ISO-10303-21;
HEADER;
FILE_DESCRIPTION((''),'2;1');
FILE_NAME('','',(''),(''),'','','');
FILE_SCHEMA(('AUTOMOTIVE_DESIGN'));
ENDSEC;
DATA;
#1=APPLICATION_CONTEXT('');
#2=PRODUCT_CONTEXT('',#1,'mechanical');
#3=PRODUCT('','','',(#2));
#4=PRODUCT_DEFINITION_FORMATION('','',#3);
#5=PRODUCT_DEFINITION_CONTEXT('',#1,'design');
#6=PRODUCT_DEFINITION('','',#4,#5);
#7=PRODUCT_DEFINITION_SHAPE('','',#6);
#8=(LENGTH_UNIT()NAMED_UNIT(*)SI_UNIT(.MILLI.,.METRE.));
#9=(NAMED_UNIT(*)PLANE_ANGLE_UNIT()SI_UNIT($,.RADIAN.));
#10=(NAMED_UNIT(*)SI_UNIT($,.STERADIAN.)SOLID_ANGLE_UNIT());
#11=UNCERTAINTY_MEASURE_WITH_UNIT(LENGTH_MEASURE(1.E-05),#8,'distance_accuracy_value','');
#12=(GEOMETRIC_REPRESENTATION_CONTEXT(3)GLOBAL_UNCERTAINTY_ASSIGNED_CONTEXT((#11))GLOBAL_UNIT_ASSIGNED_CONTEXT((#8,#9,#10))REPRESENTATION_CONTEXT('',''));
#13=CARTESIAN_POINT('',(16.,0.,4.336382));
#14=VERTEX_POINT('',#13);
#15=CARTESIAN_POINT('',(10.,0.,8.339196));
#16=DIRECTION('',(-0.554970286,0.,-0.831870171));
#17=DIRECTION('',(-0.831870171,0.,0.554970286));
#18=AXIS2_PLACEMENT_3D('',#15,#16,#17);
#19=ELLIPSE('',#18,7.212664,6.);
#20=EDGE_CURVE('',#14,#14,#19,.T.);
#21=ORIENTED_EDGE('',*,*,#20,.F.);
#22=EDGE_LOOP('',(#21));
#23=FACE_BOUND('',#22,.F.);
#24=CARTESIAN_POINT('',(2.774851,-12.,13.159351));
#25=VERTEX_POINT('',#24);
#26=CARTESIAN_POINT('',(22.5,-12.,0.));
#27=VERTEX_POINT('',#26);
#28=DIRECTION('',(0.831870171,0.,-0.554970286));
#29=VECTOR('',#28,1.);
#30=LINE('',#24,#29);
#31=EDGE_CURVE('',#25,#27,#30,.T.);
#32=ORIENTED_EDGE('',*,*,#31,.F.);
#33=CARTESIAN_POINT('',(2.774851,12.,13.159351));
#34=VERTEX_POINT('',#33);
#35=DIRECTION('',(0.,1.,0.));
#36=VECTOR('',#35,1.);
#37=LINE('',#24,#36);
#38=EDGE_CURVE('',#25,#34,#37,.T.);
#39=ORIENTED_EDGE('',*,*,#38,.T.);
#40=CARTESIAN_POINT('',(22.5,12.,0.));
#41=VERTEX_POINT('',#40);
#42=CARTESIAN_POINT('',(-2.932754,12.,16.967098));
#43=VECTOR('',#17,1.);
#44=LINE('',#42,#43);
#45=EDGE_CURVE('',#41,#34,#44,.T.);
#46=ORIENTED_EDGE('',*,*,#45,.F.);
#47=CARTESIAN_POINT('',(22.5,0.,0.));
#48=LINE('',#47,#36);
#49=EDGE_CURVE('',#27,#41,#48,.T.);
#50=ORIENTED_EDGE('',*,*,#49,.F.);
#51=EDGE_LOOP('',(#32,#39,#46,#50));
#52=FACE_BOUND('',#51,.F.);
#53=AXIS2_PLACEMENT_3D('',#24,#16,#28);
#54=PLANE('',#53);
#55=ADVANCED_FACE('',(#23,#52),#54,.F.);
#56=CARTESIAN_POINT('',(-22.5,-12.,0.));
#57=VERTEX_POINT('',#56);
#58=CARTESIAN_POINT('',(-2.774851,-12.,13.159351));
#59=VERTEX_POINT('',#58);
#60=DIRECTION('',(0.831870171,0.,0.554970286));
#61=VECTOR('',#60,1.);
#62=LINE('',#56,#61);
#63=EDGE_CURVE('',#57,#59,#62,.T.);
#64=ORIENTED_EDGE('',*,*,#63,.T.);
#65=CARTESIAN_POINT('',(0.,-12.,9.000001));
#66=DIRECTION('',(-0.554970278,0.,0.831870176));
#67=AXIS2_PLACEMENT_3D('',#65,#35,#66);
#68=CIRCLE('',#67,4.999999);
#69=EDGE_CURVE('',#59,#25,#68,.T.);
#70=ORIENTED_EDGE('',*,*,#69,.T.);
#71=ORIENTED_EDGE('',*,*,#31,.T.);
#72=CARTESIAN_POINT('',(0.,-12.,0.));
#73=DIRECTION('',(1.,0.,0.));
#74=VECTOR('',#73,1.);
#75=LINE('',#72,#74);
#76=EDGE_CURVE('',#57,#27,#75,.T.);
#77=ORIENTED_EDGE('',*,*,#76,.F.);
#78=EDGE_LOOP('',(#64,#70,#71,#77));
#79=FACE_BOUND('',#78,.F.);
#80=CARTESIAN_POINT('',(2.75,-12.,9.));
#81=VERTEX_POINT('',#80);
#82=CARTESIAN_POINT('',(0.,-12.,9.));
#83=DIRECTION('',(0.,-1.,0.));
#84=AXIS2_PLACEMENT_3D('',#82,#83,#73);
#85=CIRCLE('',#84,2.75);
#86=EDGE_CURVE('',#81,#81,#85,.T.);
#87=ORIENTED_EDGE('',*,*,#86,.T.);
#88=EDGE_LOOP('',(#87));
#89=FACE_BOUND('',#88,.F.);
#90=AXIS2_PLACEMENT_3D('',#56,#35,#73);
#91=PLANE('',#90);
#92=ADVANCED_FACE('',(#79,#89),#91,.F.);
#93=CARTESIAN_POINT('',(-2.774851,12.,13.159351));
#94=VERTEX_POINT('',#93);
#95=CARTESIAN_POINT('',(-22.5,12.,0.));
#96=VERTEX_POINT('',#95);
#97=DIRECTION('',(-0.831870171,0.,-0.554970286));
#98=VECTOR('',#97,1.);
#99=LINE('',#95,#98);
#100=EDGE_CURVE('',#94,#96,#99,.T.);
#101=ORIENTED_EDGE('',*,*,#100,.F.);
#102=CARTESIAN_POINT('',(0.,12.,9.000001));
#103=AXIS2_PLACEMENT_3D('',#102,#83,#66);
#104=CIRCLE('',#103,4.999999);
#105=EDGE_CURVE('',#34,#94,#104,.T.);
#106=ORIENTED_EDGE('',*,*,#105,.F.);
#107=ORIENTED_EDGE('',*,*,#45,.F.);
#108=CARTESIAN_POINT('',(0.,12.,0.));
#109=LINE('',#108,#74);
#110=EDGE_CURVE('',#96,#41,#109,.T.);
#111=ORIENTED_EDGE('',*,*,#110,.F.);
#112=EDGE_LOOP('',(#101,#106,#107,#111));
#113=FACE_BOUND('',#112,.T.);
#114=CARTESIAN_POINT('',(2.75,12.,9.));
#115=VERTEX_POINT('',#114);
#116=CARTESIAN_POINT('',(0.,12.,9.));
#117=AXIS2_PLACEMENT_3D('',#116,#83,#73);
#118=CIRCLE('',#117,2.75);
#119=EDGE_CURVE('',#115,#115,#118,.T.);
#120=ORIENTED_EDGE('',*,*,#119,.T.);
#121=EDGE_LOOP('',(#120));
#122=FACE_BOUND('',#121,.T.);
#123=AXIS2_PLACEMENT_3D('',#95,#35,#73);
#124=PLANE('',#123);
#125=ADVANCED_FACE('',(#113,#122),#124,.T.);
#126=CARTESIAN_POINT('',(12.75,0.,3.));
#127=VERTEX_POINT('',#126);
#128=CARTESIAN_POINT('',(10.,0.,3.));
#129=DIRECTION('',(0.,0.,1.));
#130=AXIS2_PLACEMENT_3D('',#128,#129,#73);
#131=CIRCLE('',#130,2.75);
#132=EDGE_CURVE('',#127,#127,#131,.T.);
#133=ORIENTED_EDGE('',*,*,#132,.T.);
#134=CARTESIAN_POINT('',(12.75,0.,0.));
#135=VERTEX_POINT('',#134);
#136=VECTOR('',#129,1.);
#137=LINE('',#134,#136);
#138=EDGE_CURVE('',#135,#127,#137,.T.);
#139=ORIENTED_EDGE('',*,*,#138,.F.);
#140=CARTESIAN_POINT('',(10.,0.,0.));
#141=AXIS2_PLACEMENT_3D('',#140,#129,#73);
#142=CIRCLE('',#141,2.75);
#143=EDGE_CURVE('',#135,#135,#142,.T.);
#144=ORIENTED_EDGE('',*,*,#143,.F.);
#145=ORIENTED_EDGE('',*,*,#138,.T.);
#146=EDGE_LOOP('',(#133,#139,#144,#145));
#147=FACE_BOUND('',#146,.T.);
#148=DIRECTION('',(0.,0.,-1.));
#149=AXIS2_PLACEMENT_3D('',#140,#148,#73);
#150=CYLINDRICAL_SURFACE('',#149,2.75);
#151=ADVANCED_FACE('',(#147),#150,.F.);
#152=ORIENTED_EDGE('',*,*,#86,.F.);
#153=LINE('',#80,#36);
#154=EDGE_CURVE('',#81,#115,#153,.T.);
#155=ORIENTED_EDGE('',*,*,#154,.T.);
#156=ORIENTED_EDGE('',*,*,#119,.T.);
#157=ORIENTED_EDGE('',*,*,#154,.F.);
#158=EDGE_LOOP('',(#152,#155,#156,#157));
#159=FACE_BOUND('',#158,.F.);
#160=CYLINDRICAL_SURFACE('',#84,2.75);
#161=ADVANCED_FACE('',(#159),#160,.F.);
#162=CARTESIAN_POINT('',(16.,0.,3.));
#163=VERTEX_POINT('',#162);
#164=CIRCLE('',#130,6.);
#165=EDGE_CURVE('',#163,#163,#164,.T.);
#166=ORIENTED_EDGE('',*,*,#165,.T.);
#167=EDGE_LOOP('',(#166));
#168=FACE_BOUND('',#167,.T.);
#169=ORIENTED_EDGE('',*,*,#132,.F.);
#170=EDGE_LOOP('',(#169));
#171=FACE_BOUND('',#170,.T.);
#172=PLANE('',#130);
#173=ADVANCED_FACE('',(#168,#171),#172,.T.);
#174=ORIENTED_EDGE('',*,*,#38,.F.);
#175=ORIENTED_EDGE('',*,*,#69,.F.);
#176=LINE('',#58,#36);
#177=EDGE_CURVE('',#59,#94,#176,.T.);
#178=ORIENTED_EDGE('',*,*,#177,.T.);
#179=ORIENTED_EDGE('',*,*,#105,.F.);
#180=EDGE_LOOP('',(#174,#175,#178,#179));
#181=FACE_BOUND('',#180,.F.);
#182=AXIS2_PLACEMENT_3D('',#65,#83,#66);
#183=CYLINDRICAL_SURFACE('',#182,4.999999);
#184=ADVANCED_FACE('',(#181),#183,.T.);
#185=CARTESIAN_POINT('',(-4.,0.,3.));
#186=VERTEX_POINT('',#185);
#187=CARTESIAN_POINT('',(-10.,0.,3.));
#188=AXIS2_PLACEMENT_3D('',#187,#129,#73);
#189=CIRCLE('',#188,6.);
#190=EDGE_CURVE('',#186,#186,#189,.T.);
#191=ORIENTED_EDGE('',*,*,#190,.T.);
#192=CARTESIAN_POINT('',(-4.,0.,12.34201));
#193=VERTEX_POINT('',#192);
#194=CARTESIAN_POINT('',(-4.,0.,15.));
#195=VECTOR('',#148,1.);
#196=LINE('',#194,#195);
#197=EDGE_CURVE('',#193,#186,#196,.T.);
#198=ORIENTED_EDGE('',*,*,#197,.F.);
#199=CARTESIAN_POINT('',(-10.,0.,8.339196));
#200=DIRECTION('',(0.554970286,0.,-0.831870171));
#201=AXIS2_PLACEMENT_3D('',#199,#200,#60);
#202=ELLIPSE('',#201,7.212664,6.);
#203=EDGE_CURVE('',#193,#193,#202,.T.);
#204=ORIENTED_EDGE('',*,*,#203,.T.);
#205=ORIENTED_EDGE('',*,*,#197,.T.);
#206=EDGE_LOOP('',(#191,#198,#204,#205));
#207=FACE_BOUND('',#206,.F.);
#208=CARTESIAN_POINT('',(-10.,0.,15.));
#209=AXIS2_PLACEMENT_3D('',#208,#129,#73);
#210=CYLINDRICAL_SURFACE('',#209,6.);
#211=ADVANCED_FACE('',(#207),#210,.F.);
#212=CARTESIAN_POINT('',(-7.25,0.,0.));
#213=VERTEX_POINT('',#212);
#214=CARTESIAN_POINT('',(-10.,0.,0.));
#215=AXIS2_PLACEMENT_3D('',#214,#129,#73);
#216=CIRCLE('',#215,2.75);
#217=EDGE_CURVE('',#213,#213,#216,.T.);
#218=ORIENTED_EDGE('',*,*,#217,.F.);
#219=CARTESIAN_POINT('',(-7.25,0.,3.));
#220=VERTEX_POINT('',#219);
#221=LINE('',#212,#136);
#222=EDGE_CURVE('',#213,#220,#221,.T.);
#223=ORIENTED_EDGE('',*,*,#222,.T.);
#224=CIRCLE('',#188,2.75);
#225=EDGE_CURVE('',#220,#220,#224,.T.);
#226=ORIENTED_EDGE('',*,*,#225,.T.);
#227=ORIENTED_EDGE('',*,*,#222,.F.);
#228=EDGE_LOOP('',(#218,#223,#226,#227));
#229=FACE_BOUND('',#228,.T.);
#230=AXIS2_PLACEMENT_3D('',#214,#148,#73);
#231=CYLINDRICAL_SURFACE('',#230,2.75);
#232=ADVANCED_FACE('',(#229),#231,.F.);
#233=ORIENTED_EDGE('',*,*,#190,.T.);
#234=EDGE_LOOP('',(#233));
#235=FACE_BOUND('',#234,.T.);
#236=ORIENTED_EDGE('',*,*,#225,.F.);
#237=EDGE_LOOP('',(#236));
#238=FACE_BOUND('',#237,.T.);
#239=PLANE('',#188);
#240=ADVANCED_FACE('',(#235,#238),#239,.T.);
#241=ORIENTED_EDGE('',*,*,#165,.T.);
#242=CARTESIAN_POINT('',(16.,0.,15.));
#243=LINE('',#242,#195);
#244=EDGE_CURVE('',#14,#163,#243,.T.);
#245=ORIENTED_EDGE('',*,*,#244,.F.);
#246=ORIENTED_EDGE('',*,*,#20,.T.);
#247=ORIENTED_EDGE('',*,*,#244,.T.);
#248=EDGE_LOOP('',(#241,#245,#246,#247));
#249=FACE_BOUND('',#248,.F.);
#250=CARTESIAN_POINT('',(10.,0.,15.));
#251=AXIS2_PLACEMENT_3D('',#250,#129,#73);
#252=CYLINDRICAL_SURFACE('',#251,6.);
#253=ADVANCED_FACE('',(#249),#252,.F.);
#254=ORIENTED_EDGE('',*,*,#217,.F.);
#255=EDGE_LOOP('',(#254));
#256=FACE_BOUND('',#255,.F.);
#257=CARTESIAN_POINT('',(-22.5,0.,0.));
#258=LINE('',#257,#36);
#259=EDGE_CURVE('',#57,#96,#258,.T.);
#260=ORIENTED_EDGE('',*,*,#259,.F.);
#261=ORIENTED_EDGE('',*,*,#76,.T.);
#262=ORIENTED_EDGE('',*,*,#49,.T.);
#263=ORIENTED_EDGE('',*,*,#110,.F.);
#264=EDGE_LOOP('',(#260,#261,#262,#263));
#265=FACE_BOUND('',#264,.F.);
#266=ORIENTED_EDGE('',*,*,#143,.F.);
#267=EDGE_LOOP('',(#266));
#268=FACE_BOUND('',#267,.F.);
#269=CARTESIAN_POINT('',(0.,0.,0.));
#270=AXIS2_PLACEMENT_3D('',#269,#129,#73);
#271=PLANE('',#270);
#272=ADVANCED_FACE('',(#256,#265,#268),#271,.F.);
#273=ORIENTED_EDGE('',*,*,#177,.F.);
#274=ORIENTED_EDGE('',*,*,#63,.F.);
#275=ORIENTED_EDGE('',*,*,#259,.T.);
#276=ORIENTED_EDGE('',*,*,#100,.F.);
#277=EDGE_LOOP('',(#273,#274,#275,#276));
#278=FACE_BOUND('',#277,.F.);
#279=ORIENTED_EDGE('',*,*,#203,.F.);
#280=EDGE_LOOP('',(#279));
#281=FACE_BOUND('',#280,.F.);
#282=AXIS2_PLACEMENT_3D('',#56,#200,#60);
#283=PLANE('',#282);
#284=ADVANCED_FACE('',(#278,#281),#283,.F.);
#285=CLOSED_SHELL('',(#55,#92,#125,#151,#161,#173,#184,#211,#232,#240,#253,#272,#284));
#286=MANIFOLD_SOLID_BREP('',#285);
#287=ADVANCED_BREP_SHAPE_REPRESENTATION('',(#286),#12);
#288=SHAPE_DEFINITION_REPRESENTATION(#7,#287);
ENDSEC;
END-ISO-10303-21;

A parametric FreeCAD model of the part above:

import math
import FreeCAD as App
import Part
import Sketcher
from FreeCAD import Vector
Q = App.Units.Quantity

doc = App.newDocument("Part")
body = doc.addObject("PartDesign::Body", "Body")

sketch1 = body.newObject("Sketcher::SketchObject", "Sketch")
sketch1.AttachmentSupport = (doc.getObject("XY_Plane"), [""])
sketch1.MapMode = "FlatFace"
sketch1.addGeometry([
    Part.LineSegment(Vector(-22.5, 12, 0), Vector(-22.5, -12, 0)),
    Part.LineSegment(Vector(-22.5, -12, 0), Vector(22.5, -12, 0)),
    Part.LineSegment(Vector(22.5, -12, 0), Vector(22.5, 12, 0)),
    Part.LineSegment(Vector(22.5, 12, 0), Vector(-22.5, 12, 0)),
    Part.Circle(Vector(-10, 0, 0), Vector(0, 0, 1), 2.8),
    Part.Circle(Vector(10, 0, 0), Vector(0, 0, 1), 2.8),
], False)
sketch1.addConstraint([
    Sketcher.Constraint("Coincident", 0, 2, 1, 1),
    Sketcher.Constraint("Coincident", 1, 2, 2, 1),
    Sketcher.Constraint("Coincident", 2, 2, 3, 1),
    Sketcher.Constraint("Coincident", 3, 2, 0, 1),
    Sketcher.Constraint("Vertical", 0),
    Sketcher.Constraint("Horizontal", 1),
    Sketcher.Constraint("Vertical", 2),
    Sketcher.Constraint("Horizontal", 3),
    Sketcher.Constraint("Equal", 4, 5),
    Sketcher.Constraint("Symmetric", 4, 3, 5, 3, -1, 1),
    Sketcher.Constraint("Symmetric", 0, 2, 2, 2, -1, 1),
    Sketcher.Constraint("PointOnObject", 4, 3, -1),
    Sketcher.Constraint("Diameter", 4, Q("5.5 mm")),
    Sketcher.Constraint("DistanceX", 1, 1, 1, 2, Q("45 mm")),
    Sketcher.Constraint("DistanceY", 0, 2, 0, 1, Q("24 mm")),
    Sketcher.Constraint("DistanceX", 4, 3, -1, 1, Q("10 mm")),
])
pad1 = body.newObject("PartDesign::Pad", "Pad")
pad1.Profile = sketch1
pad1.Length = 15

sketch2 = body.newObject("Sketcher::SketchObject", "Sketch001")
sketch2.AttachmentSupport = (doc.getObject("XY_Plane"), [""])
sketch2.MapMode = "FlatFace"
sketch2.AttachmentOffset = App.Placement(Vector(0, 0, 15), App.Rotation())
sketch2.addGeometry([
    Part.Circle(Vector(-10, 0, 0), Vector(0, 0, 1), 6),
    Part.Circle(Vector(-10, 0, 0), Vector(0, 0, 1), 2.8),
    Part.Circle(Vector(10, 0, 0), Vector(0, 0, 1), 6),
    Part.Circle(Vector(10, 0, 0), Vector(0, 0, 1), 2.8),
], False)
sketch2.addConstraint([
    Sketcher.Constraint("Coincident", 1, 3, 0, 3),
    Sketcher.Constraint("Coincident", 3, 3, 2, 3),
    Sketcher.Constraint("Equal", 0, 2),
    Sketcher.Constraint("Equal", 1, 3),
    Sketcher.Constraint("Symmetric", 0, 3, 2, 3, -1, 1),
    Sketcher.Constraint("PointOnObject", 0, 3, -1),
    Sketcher.Constraint("Diameter", 0, Q("12 mm")),
    Sketcher.Constraint("Diameter", 1, Q("5.5 mm")),
    Sketcher.Constraint("DistanceX", 0, 3, -1, 1, Q("10 mm")),
])
pocket1 = body.newObject("PartDesign::Pocket", "Pocket")
pocket1.Profile = sketch2
pocket1.Length = 12

sketch3 = body.newObject("Sketcher::SketchObject", "Sketch002")
sketch3.AttachmentSupport = (doc.getObject("XZ_Plane"), [""])
sketch3.MapMode = "FlatFace"
sketch3.AttachmentOffset = App.Placement(Vector(0, 0, 12), App.Rotation())
sketch3.addGeometry([
    Part.Circle(Vector(0, 9, 0), Vector(0, 0, 1), 2.8),
    Part.ArcOfCircle(Part.Circle(Vector(0, 9, 0), Vector(0, 0, 1), 5), math.radians(56), math.radians(124)),
    Part.LineSegment(Vector(2.8, 13.2, 0), Vector(22.5, 0, 0)),
    Part.LineSegment(Vector(22.5, 0, 0), Vector(22.5, 15, 0)),
    Part.LineSegment(Vector(22.5, 15, 0), Vector(-22.5, 15, 0)),
    Part.LineSegment(Vector(-22.5, 15, 0), Vector(-22.5, 0, 0)),
    Part.LineSegment(Vector(-22.5, 0, 0), Vector(-2.8, 13.2, 0)),
], False)
sketch3.addConstraint([
    Sketcher.Constraint("Tangent", 1, 1, 2, 1),
    Sketcher.Constraint("Coincident", 2, 2, 3, 1),
    Sketcher.Constraint("Coincident", 3, 2, 4, 1),
    Sketcher.Constraint("Coincident", 4, 2, 5, 1),
    Sketcher.Constraint("Coincident", 5, 2, 6, 1),
    Sketcher.Constraint("Tangent", 6, 2, 1, 2),
    Sketcher.Constraint("Vertical", 3),
    Sketcher.Constraint("Horizontal", 4),
    Sketcher.Constraint("Vertical", 5),
    Sketcher.Constraint("Coincident", 1, 3, 0, 3),
    Sketcher.Constraint("Symmetric", 2, 2, 5, 2, -1, 1),
    Sketcher.Constraint("Symmetric", 1, 1, 6, 2, -2),
    Sketcher.Constraint("Radius", 1, Q("4.999999 mm")),
    Sketcher.Constraint("Diameter", 0, Q("5.5 mm")),
    Sketcher.Constraint("DistanceX", 4, 2, 4, 1, Q("45 mm")),
    Sketcher.Constraint("DistanceY", 3, 1, 3, 2, Q("15 mm")),
    Sketcher.Constraint("DistanceY", -1, 1, 0, 3, Q("9 mm")),
])
pocket2 = body.newObject("PartDesign::Pocket", "Pocket001")
pocket2.Profile = sketch3
pocket2.Type = "ThroughAll"

doc.recompute()
